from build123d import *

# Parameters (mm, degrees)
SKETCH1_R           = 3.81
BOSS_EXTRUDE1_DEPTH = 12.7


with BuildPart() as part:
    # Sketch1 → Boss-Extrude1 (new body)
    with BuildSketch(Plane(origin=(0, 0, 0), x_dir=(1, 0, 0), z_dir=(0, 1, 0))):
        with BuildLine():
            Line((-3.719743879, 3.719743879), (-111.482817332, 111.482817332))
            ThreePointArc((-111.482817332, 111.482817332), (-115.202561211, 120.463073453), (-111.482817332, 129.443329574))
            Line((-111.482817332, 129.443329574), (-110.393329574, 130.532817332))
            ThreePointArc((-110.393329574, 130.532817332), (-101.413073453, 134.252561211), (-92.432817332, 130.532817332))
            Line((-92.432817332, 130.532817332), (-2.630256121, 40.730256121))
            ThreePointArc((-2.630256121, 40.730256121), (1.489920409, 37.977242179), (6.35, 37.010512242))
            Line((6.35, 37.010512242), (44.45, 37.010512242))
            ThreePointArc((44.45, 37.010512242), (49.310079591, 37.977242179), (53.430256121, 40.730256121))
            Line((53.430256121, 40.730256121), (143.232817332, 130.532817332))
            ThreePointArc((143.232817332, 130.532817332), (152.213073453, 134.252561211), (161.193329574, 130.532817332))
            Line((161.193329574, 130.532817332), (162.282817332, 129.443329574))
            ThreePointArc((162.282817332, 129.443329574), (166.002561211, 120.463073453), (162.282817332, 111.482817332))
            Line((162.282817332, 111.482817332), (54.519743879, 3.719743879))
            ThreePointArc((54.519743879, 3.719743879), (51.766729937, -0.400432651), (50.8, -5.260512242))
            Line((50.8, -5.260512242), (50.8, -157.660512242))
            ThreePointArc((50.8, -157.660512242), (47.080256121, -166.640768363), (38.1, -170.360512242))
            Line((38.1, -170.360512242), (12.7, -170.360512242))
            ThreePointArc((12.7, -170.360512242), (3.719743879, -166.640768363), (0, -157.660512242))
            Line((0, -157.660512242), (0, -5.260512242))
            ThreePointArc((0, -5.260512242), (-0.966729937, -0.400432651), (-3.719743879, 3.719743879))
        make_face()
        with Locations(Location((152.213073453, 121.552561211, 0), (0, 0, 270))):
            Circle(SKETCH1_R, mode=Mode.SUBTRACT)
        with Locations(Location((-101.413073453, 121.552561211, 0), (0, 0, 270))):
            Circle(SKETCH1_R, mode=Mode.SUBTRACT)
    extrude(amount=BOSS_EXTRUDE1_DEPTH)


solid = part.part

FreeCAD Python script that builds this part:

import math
import FreeCAD as App
import Part
import Sketcher
from FreeCAD import Vector
Q = App.Units.Quantity

doc = App.newDocument("Part")
body = doc.addObject("PartDesign::Body", "Body")

# Sketch on XZ plane
sketch1 = body.newObject("Sketcher::SketchObject", "Sketch")
sketch1.AttachmentSupport = (doc.getObject("XZ_Plane"), [""])
sketch1.MapMode = "FlatFace"
sketch1.addGeometry(Part.LineSegment(Vector(-111.482817, -111.482817, 0), Vector(-3.719744, -3.719744, 0)), False)
sketch1.addGeometry(Part.ArcOfCircle(Part.Circle(Vector(-12.7, 5.260512, 0), Vector(0, 0, 1), 12.7), math.radians(-45), math.radians(0)), False)
sketch1.addGeometry(Part.LineSegment(Vector(0, 5.260512, 0), Vector(0, 157.660512, 0)), False)
sketch1.addGeometry(Part.ArcOfCircle(Part.Circle(Vector(12.7, 157.660512, 0), Vector(0, 0, 1), 12.7), math.radians(90), math.radians(180)), False)
sketch1.addGeometry(Part.LineSegment(Vector(12.7, 170.360512, 0), Vector(38.1, 170.360512, 0)), False)
sketch1.addGeometry(Part.ArcOfCircle(Part.Circle(Vector(38.1, 157.660512, 0), Vector(0, 0, 1), 12.7), math.radians(0), math.radians(90)), False)
sketch1.addGeometry(Part.LineSegment(Vector(50.8, 157.660512, 0), Vector(50.8, 5.260512, 0)), False)
sketch1.addGeometry(Part.ArcOfCircle(Part.Circle(Vector(63.5, 5.260512, 0), Vector(0, 0, 1), 12.7), math.radians(180), math.radians(225)), False)
sketch1.addGeometry(Part.LineSegment(Vector(54.519744, -3.719744, 0), Vector(162.282817, -111.482817, 0)), False)
sketch1.addGeometry(Part.ArcOfCircle(Part.Circle(Vector(153.302561, -120.463073, 0), Vector(0, 0, 1), 12.7), math.radians(-45), math.radians(45)), False)
sketch1.addGeometry(Part.LineSegment(Vector(162.282817, -129.44333, 0), Vector(161.19333, -130.532817, 0)), False)
sketch1.addGeometry(Part.ArcOfCircle(Part.Circle(Vector(152.213073, -121.552561, 0), Vector(0, 0, 1), 12.7), math.radians(-135), math.radians(-45)), False)
sketch1.addGeometry(Part.LineSegment(Vector(143.232817, -130.532817, 0), Vector(53.430256, -40.730256, 0)), False)
sketch1.addGeometry(Part.ArcOfCircle(Part.Circle(Vector(44.45, -49.710512, 0), Vector(0, 0, 1), 12.7), math.radians(45), math.radians(90)), False)
sketch1.addGeometry(Part.LineSegment(Vector(44.45, -37.010512, 0), Vector(6.35, -37.010512, 0)), False)
sketch1.addGeometry(Part.ArcOfCircle(Part.Circle(Vector(6.35, -49.710512, 0), Vector(0, 0, 1), 12.7), math.radians(90), math.radians(135)), False)
sketch1.addGeometry(Part.LineSegment(Vector(-2.630256, -40.730256, 0), Vector(-92.432817, -130.532817, 0)), False)
sketch1.addGeometry(Part.ArcOfCircle(Part.Circle(Vector(-101.413073, -121.552561, 0), Vector(0, 0, 1), 12.7), math.radians(-135), math.radians(-45)), False)
sketch1.addGeometry(Part.LineSegment(Vector(-110.39333, -130.532817, 0), Vector(-111.482817, -129.44333, 0)), False)
sketch1.addGeometry(Part.ArcOfCircle(Part.Circle(Vector(-102.502561, -120.463073, 0), Vector(0, 0, 1), 12.7), math.radians(135), math.radians(225)), False)
sketch1.addGeometry(Part.Circle(Vector(152.213073, -121.552561, 0), Vector(0, 0, 1), 3.81), False)
sketch1.addGeometry(Part.Circle(Vector(-101.413073, -121.552561, 0), Vector(0, 0, 1), 3.81), False)
sketch1.addConstraint(Sketcher.Constraint("Tangent", 0, 2, 1, 1))
sketch1.addConstraint(Sketcher.Constraint("Tangent", 1, 2, 2, 1))
sketch1.addConstraint(Sketcher.Constraint("Tangent", 2, 2, 3, 2))
sketch1.addConstraint(Sketcher.Constraint("Tangent", 3, 1, 4, 1))
sketch1.addConstraint(Sketcher.Constraint("Tangent", 4, 2, 5, 2))
sketch1.addConstraint(Sketcher.Constraint("Tangent", 5, 1, 6, 1))
sketch1.addConstraint(Sketcher.Constraint("Tangent", 6, 2, 7, 1))
sketch1.addConstraint(Sketcher.Constraint("Tangent", 7, 2, 8, 1))
sketch1.addConstraint(Sketcher.Constraint("Tangent", 8, 2, 9, 2))
sketch1.addConstraint(Sketcher.Constraint("Tangent", 9, 1, 10, 1))
sketch1.addConstraint(Sketcher.Constraint("Tangent", 10, 2, 11, 2))
sketch1.addConstraint(Sketcher.Constraint("Tangent", 11, 1, 12, 1))
sketch1.addConstraint(Sketcher.Constraint("Tangent", 12, 2, 13, 1))
sketch1.addConstraint(Sketcher.Constraint("Tangent", 13, 2, 14, 1))
sketch1.addConstraint(Sketcher.Constraint("Tangent", 14, 2, 15, 1))
sketch1.addConstraint(Sketcher.Constraint("Tangent", 15, 2, 16, 1))
sketch1.addConstraint(Sketcher.Constraint("Tangent", 16, 2, 17, 2))
sketch1.addConstraint(Sketcher.Constraint("Tangent", 17, 1, 18, 1))
sketch1.addConstraint(Sketcher.Constraint("Tangent", 18, 2, 19, 2))
sketch1.addConstraint(Sketcher.Constraint("Tangent", 19, 1, 0, 1))
sketch1.addConstraint(Sketcher.Constraint("Vertical", 2))
sketch1.addConstraint(Sketcher.Constraint("Horizontal", 4))
sketch1.addConstraint(Sketcher.Constraint("Vertical", 6))
sketch1.addConstraint(Sketcher.Constraint("Horizontal", 14))
sketch1.addConstraint(Sketcher.Constraint("Coincident", 20, 3, 11, 3))
sketch1.addConstraint(Sketcher.Constraint("Coincident", 21, 3, 17, 3))
sketch1.addConstraint(Sketcher.Constraint("Equal", 1, 3))
sketch1.addConstraint(Sketcher.Constraint("Equal", 3, 5))
sketch1.addConstraint(Sketcher.Constraint("Equal", 5, 7))
sketch1.addConstraint(Sketcher.Constraint("Equal", 7, 9))
sketch1.addConstraint(Sketcher.Constraint("Equal", 9, 11))
sketch1.addConstraint(Sketcher.Constraint("Equal", 11, 13))
sketch1.addConstraint(Sketcher.Constraint("Equal", 13, 15))
sketch1.addConstraint(Sketcher.Constraint("Equal", 15, 17))
sketch1.addConstraint(Sketcher.Constraint("Equal", 17, 19))
sketch1.addConstraint(Sketcher.Constraint("Equal", 20, 21))
sketch1.addConstraint(Sketcher.Constraint("PointOnObject", 1, 2, -2))
sketch1.addConstraint(Sketcher.Constraint("Perpendicular", 0, 8))
sketch1.addConstraint(Sketcher.Constraint("Perpendicular", 8, 10))
sketch1.addConstraint(Sketcher.Constraint("Perpendicular", 10, 12))
sketch1.addConstraint(Sketcher.Constraint("Perpendicular", 12, 16))
sketch1.addConstraint(Sketcher.Constraint("Perpendicular", 16, 18))
sketch1.addConstraint(Sketcher.Constraint("Horizontal", 1, 3, 7, 3))
sketch1.addConstraint(Sketcher.Constraint("Horizontal", 11, 3, 17, 3))
sketch1.addConstraint(Sketcher.Constraint("Horizontal", 9, 3, 19, 3))
sketch1.addConstraint(Sketcher.Constraint("Horizontal", 0, 2, 7, 2))
sketch1.addConstraint(Sketcher.Constraint("Diameter", 20, Q("0.3 in")))
sketch1.addConstraint(Sketcher.Constraint("Radius", 1, Q("0.5 in")))
sketch1.addConstraint(Sketcher.Constraint("DistanceX", 4, 1, 4, 2, Q("1 in")))
sketch1.addConstraint(Sketcher.Constraint("DistanceY", 2, 1, 2, 2, Q("6 in")))
sketch1.addConstraint(Sketcher.Constraint("Distance", 0, Q("6 in")))
sketch1.addConstraint(Sketcher.Constraint("Distance", 12, Q("5 in")))
sketch1.addConstraint(Sketcher.Constraint("DistanceX", 14, 2, 14, 1, Q("1.5 in")))
sketch1.addConstraint(Sketcher.Constraint("DistanceY", 11, 3, -1, 1, Q("121.552561 mm")))
pad1 = body.newObject("PartDesign::Pad", "Pad")
pad1.Profile = sketch1
pad1.Length = Q("0.5 in")
pad1.Reversed = True

doc.recompute()
